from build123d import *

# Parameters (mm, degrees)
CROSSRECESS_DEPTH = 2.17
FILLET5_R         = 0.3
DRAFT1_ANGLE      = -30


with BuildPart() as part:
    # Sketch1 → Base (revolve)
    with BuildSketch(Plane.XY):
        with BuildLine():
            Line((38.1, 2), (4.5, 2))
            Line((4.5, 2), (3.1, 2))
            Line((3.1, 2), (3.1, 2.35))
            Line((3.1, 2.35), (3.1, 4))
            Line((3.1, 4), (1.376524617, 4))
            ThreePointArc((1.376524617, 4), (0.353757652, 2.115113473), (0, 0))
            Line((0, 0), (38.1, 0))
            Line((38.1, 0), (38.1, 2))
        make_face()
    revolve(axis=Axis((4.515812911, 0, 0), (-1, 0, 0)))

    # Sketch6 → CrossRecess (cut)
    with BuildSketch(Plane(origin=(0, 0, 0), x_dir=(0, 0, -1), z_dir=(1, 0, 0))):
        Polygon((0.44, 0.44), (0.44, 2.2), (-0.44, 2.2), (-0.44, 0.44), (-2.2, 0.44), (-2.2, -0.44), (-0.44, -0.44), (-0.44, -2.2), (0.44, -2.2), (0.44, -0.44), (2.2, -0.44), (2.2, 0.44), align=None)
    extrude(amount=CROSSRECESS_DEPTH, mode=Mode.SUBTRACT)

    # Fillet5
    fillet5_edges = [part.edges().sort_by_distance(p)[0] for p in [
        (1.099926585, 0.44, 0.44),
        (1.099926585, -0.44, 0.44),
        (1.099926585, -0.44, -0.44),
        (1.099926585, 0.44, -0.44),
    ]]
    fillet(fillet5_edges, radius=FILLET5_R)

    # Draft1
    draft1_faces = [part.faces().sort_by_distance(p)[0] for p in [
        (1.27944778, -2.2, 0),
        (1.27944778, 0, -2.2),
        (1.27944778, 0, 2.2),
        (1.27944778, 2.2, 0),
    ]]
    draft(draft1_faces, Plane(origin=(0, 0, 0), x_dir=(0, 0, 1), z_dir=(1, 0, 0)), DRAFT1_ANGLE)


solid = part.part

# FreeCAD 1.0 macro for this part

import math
import FreeCAD as App
import Part
import Sketcher

V = App.Vector


def edges_at(feature, points):
    """Names of the edges that pass closest to the given points."""
    edges = feature.Shape.Edges
    near = lambda p: min(range(len(edges)), key=lambda i: edges[i].distToShape(Part.Vertex(*p))[0])
    return sorted({f"Edge{near(p) + 1}" for p in points})


def faces_at(feature, points):
    """Names of the faces that lie closest to the given points."""
    faces = feature.Shape.Faces
    near = lambda p: min(range(len(faces)), key=lambda i: faces[i].distToShape(Part.Vertex(*p))[0])
    return sorted({f"Face{near(p) + 1}" for p in points})

doc = App.newDocument("Part")
body = doc.addObject("PartDesign::Body", "Body")

sketch1 = doc.addObject("Sketcher::SketchObject", "Sketch")
body.addObject(sketch1)
sketch1.AttachmentSupport = (doc.XY_Plane, [""])
sketch1.MapMode = "FlatFace"
sketch1.addGeometry(Part.LineSegment(V(38.1, 2, 0), V(3.1, 2, 0)), False)
sketch1.addGeometry(Part.LineSegment(V(3.1, 2, 0), V(3.1, 4, 0)), False)
sketch1.addGeometry(Part.LineSegment(V(3.1, 4, 0), V(1.4, 4, 0)), False)
sketch1.addGeometry(Part.ArcOfCircle(Part.Circle(V(6.5, 0, 0), V(0, 0, 1), 6.5), math.radians(142), math.radians(180)), False)
sketch1.addGeometry(Part.LineSegment(V(0, 0, 0), V(38.1, 0, 0)), False)
sketch1.addGeometry(Part.LineSegment(V(38.1, 0, 0), V(38.1, 2, 0)), False)
sketch1.addConstraint(Sketcher.Constraint("Coincident", 0, 2, 1, 1))
sketch1.addConstraint(Sketcher.Constraint("Coincident", 1, 2, 2, 1))
sketch1.addConstraint(Sketcher.Constraint("Coincident", 2, 2, 3, 1))
sketch1.addConstraint(Sketcher.Constraint("Coincident", 3, 2, 4, 1))
sketch1.addConstraint(Sketcher.Constraint("Coincident", 4, 2, 5, 1))
sketch1.addConstraint(Sketcher.Constraint("Coincident", 5, 2, 0, 1))
sketch1.addConstraint(Sketcher.Constraint("Horizontal", 0))
sketch1.addConstraint(Sketcher.Constraint("Vertical", 1))
sketch1.addConstraint(Sketcher.Constraint("Horizontal", 2))
sketch1.addConstraint(Sketcher.Constraint("Horizontal", 4))
sketch1.addConstraint(Sketcher.Constraint("Vertical", 5))
sketch1.addConstraint(Sketcher.Constraint("Coincident", 3, 2, -1, 1))
sketch1.addConstraint(Sketcher.Constraint("PointOnObject", 3, 3, -1))
sketch1.addConstraint(Sketcher.Constraint("Equal", 1, 5))
sketch1.addConstraint(Sketcher.Constraint("Radius", 3, 6.5))
sketch1.addConstraint(Sketcher.Constraint("DistanceX", 0, 2, 0, 1, 35.0))
sketch1.addConstraint(Sketcher.Constraint("DistanceY", 1, 1, 1, 2, 2.0))
sketch1.addConstraint(Sketcher.Constraint("DistanceX", 4, 1, 4, 2, 38.1))
revolution = doc.addObject("PartDesign::Revolution", "Revolution")
body.addObject(revolution)
revolution.Profile = sketch1
revolution.ReferenceAxis = (sketch1, ["H_Axis"])
revolution.Angle = 360

sketch2 = doc.addObject("Sketcher::SketchObject", "Sketch001")
body.addObject(sketch2)
sketch2.AttachmentSupport = (doc.YZ_Plane, [""])
sketch2.MapMode = "FlatFace"
sketch2.addGeometry(Part.LineSegment(V(0.4, -0.4, 0), V(2.2, -0.4, 0)), False)
sketch2.addGeometry(Part.LineSegment(V(2.2, -0.4, 0), V(2.2, 0.4, 0)), False)
sketch2.addGeometry(Part.LineSegment(V(2.2, 0.4, 0), V(0.4, 0.4, 0)), False)
sketch2.addGeometry(Part.LineSegment(V(0.4, 0.4, 0), V(0.4, 2.2, 0)), False)
sketch2.addGeometry(Part.LineSegment(V(0.4, 2.2, 0), V(-0.4, 2.2, 0)), False)
sketch2.addGeometry(Part.LineSegment(V(-0.4, 2.2, 0), V(-0.4, 0.4, 0)), False)
sketch2.addGeometry(Part.LineSegment(V(-0.4, 0.4, 0), V(-2.2, 0.4, 0)), False)
sketch2.addGeometry(Part.LineSegment(V(-2.2, 0.4, 0), V(-2.2, -0.4, 0)), False)
sketch2.addGeometry(Part.LineSegment(V(-2.2, -0.4, 0), V(-0.4, -0.4, 0)), False)
sketch2.addGeometry(Part.LineSegment(V(-0.4, -0.4, 0), V(-0.4, -2.2, 0)), False)
sketch2.addGeometry(Part.LineSegment(V(-0.4, -2.2, 0), V(0.4, -2.2, 0)), False)
sketch2.addGeometry(Part.LineSegment(V(0.4, -2.2, 0), V(0.4, -0.4, 0)), False)
sketch2.addConstraint(Sketcher.Constraint("Coincident", 0, 2, 1, 1))
sketch2.addConstraint(Sketcher.Constraint("Coincident", 1, 2, 2, 1))
sketch2.addConstraint(Sketcher.Constraint("Coincident", 2, 2, 3, 1))
sketch2.addConstraint(Sketcher.Constraint("Coincident", 3, 2, 4, 1))
sketch2.addConstraint(Sketcher.Constraint("Coincident", 4, 2, 5, 1))
sketch2.addConstraint(Sketcher.Constraint("Coincident", 5, 2, 6, 1))
sketch2.addConstraint(Sketcher.Constraint("Coincident", 6, 2, 7, 1))
sketch2.addConstraint(Sketcher.Constraint("Coincident", 7, 2, 8, 1))
sketch2.addConstraint(Sketcher.Constraint("Coincident", 8, 2, 9, 1))
sketch2.addConstraint(Sketcher.Constraint("Coincident", 9, 2, 10, 1))
sketch2.addConstraint(Sketcher.Constraint("Coincident", 10, 2, 11, 1))
sketch2.addConstraint(Sketcher.Constraint("Coincident", 11, 2, 0, 1))
sketch2.addConstraint(Sketcher.Constraint("Horizontal", 0))
sketch2.addConstraint(Sketcher.Constraint("Vertical", 1))
sketch2.addConstraint(Sketcher.Constraint("Horizontal", 2))
sketch2.addConstraint(Sketcher.Constraint("Vertical", 3))
sketch2.addConstraint(Sketcher.Constraint("Horizontal", 4))
sketch2.addConstraint(Sketcher.Constraint("Vertical", 5))
sketch2.addConstraint(Sketcher.Constraint("Horizontal", 6))
sketch2.addConstraint(Sketcher.Constraint("Vertical", 7))
sketch2.addConstraint(Sketcher.Constraint("Horizontal", 8))
sketch2.addConstraint(Sketcher.Constraint("Vertical", 9))
sketch2.addConstraint(Sketcher.Constraint("Horizontal", 10))
sketch2.addConstraint(Sketcher.Constraint("Vertical", 11))
sketch2.addConstraint(Sketcher.Constraint("Symmetric", 0, 2, 6, 2, -1, 1))
sketch2.addConstraint(Sketcher.Constraint("Symmetric", 2, 2, 8, 2, -1, 1))
sketch2.addConstraint(Sketcher.Constraint("Symmetric", 4, 2, 10, 2, -1, 1))
sketch2.addConstraint(Sketcher.Constraint("Symmetric", 2, 2, 5, 2, -2))
sketch2.addConstraint(Sketcher.Constraint("Equal", 10, 1))
sketch2.addConstraint(Sketcher.Constraint("Equal", 8, 3))
sketch2.addConstraint(Sketcher.Constraint("DistanceX", 0, 1, 0, 2, 1.76))
sketch2.addConstraint(Sketcher.Constraint("DistanceX", 4, 2, 4, 1, 0.88))
pocket1 = doc.addObject("PartDesign::Pocket", "Pocket")
body.addObject(pocket1)
pocket1.Profile = sketch2
pocket1.Length = 2.17
pocket1.Reversed = True
doc.recompute()

fillet = doc.addObject("PartDesign::Fillet", "Fillet")
body.addObject(fillet)
fillet.Base = (pocket1, edges_at(pocket1, [
    (1.1, 0.44, 0.44),
    (1.1, -0.44, 0.44),
    (1.1, -0.44, -0.44),
    (1.1, 0.44, -0.44),
]))
fillet.Radius = 0.3
doc.recompute()

draft = doc.addObject("PartDesign::Draft", "Draft")
body.addObject(draft)
draft.Base = (fillet, faces_at(fillet, [
    (1.277, -2.2, 0),
    (1.277, 0, -2.2),
    (1.277, 0, 2.2),
    (1.277, 2.2, 0),
]))
draft.NeutralPlane = (doc.YZ_Plane, [""])
draft.Angle = 30
draft.Reversed = True

doc.recompute()
